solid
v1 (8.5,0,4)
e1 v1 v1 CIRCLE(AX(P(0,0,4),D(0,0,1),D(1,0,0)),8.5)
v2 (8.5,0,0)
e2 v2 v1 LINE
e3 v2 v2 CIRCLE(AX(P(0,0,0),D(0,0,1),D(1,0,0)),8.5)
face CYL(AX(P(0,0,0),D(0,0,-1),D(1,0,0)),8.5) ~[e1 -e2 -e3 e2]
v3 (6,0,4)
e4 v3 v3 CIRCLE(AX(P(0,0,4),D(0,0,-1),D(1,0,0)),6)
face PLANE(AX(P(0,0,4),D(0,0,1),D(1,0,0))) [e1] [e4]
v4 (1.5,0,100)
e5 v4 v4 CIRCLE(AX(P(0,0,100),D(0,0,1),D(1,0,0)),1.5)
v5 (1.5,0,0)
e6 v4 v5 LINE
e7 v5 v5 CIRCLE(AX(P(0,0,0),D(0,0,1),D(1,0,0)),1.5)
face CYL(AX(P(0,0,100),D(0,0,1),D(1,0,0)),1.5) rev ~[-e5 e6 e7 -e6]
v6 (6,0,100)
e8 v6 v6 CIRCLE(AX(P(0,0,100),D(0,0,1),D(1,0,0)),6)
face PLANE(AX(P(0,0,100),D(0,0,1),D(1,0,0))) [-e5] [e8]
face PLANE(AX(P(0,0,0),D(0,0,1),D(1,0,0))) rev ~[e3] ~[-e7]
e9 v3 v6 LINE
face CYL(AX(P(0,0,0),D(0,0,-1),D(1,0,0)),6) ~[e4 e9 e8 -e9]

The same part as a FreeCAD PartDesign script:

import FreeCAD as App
import Part
import Sketcher
from FreeCAD import Vector

doc = App.newDocument("Part")
params = doc.addObject("Spreadsheet::Sheet", "Params")
for row, (alias, value) in enumerate([
    ("sketch1_diameter", "17 mm"),
    ("pad1_length", "4 mm"),
    ("sketch2_diameter", "12 mm"),
    ("pad2_length", "100 mm"),
    ("sketch3_diameter", "3 mm"),
    ("pocket1_length", "114.9 mm"),
], start=1):
    params.set(f"A{row}", alias)
    params.set(f"B{row}", "=" + value)
    params.setAlias(f"B{row}", alias)

body = doc.addObject("PartDesign::Body", "Body")

# Sketch on XY plane
sketch1 = doc.addObject("Sketcher::SketchObject", "Sketch")
body.addObject(sketch1)
sketch1.AttachmentSupport = (doc.XY_Plane, [""])
sketch1.MapMode = "FlatFace"
sketch1.addGeometry(Part.Circle(Vector(0, 0, 0), Vector(0, 0, 1), 8.5), False)
sketch1.addConstraint(Sketcher.Constraint("Coincident", 0, 3, -1, 1))
sketch1.addConstraint(Sketcher.Constraint("Diameter", 0, 17.0))
sketch1.setExpression("Constraints[1]", "Params.sketch1_diameter")
pad1 = doc.addObject("PartDesign::Pad", "Pad")
body.addObject(pad1)
pad1.Profile = sketch1
pad1.setExpression("Length", "Params.pad1_length")

# Sketch on XY plane
sketch2 = doc.addObject("Sketcher::SketchObject", "Sketch001")
body.addObject(sketch2)
sketch2.AttachmentSupport = (doc.XY_Plane, [""])
sketch2.MapMode = "FlatFace"
sketch2.addGeometry(Part.Circle(Vector(0, 0, 0), Vector(0, 0, 1), 6), False)
sketch2.addConstraint(Sketcher.Constraint("Coincident", 0, 3, -1, 1))
sketch2.addConstraint(Sketcher.Constraint("Diameter", 0, 12.0))
sketch2.setExpression("Constraints[1]", "Params.sketch2_diameter")
pad2 = doc.addObject("PartDesign::Pad", "Pad001")
body.addObject(pad2)
pad2.Profile = sketch2
pad2.setExpression("Length", "Params.pad2_length")

# Sketch on XY plane
sketch3 = doc.addObject("Sketcher::SketchObject", "Sketch002")
body.addObject(sketch3)
sketch3.AttachmentSupport = (doc.XY_Plane, [""])
sketch3.MapMode = "FlatFace"
sketch3.AttachmentOffset = App.Placement(Vector(0, 0, 100), App.Rotation())
sketch3.addGeometry(Part.Circle(Vector(0, 0, 0), Vector(0, 0, 1), 1.5), False)
sketch3.addConstraint(Sketcher.Constraint("Coincident", 0, 3, -1, 1))
sketch3.addConstraint(Sketcher.Constraint("Diameter", 0, 3.0))
sketch3.setExpression("Constraints[1]", "Params.sketch3_diameter")
pocket1 = doc.addObject("PartDesign::Pocket", "Pocket")
body.addObject(pocket1)
pocket1.Profile = sketch3
pocket1.setExpression("Length", "Params.pocket1_length")

doc.recompute()
